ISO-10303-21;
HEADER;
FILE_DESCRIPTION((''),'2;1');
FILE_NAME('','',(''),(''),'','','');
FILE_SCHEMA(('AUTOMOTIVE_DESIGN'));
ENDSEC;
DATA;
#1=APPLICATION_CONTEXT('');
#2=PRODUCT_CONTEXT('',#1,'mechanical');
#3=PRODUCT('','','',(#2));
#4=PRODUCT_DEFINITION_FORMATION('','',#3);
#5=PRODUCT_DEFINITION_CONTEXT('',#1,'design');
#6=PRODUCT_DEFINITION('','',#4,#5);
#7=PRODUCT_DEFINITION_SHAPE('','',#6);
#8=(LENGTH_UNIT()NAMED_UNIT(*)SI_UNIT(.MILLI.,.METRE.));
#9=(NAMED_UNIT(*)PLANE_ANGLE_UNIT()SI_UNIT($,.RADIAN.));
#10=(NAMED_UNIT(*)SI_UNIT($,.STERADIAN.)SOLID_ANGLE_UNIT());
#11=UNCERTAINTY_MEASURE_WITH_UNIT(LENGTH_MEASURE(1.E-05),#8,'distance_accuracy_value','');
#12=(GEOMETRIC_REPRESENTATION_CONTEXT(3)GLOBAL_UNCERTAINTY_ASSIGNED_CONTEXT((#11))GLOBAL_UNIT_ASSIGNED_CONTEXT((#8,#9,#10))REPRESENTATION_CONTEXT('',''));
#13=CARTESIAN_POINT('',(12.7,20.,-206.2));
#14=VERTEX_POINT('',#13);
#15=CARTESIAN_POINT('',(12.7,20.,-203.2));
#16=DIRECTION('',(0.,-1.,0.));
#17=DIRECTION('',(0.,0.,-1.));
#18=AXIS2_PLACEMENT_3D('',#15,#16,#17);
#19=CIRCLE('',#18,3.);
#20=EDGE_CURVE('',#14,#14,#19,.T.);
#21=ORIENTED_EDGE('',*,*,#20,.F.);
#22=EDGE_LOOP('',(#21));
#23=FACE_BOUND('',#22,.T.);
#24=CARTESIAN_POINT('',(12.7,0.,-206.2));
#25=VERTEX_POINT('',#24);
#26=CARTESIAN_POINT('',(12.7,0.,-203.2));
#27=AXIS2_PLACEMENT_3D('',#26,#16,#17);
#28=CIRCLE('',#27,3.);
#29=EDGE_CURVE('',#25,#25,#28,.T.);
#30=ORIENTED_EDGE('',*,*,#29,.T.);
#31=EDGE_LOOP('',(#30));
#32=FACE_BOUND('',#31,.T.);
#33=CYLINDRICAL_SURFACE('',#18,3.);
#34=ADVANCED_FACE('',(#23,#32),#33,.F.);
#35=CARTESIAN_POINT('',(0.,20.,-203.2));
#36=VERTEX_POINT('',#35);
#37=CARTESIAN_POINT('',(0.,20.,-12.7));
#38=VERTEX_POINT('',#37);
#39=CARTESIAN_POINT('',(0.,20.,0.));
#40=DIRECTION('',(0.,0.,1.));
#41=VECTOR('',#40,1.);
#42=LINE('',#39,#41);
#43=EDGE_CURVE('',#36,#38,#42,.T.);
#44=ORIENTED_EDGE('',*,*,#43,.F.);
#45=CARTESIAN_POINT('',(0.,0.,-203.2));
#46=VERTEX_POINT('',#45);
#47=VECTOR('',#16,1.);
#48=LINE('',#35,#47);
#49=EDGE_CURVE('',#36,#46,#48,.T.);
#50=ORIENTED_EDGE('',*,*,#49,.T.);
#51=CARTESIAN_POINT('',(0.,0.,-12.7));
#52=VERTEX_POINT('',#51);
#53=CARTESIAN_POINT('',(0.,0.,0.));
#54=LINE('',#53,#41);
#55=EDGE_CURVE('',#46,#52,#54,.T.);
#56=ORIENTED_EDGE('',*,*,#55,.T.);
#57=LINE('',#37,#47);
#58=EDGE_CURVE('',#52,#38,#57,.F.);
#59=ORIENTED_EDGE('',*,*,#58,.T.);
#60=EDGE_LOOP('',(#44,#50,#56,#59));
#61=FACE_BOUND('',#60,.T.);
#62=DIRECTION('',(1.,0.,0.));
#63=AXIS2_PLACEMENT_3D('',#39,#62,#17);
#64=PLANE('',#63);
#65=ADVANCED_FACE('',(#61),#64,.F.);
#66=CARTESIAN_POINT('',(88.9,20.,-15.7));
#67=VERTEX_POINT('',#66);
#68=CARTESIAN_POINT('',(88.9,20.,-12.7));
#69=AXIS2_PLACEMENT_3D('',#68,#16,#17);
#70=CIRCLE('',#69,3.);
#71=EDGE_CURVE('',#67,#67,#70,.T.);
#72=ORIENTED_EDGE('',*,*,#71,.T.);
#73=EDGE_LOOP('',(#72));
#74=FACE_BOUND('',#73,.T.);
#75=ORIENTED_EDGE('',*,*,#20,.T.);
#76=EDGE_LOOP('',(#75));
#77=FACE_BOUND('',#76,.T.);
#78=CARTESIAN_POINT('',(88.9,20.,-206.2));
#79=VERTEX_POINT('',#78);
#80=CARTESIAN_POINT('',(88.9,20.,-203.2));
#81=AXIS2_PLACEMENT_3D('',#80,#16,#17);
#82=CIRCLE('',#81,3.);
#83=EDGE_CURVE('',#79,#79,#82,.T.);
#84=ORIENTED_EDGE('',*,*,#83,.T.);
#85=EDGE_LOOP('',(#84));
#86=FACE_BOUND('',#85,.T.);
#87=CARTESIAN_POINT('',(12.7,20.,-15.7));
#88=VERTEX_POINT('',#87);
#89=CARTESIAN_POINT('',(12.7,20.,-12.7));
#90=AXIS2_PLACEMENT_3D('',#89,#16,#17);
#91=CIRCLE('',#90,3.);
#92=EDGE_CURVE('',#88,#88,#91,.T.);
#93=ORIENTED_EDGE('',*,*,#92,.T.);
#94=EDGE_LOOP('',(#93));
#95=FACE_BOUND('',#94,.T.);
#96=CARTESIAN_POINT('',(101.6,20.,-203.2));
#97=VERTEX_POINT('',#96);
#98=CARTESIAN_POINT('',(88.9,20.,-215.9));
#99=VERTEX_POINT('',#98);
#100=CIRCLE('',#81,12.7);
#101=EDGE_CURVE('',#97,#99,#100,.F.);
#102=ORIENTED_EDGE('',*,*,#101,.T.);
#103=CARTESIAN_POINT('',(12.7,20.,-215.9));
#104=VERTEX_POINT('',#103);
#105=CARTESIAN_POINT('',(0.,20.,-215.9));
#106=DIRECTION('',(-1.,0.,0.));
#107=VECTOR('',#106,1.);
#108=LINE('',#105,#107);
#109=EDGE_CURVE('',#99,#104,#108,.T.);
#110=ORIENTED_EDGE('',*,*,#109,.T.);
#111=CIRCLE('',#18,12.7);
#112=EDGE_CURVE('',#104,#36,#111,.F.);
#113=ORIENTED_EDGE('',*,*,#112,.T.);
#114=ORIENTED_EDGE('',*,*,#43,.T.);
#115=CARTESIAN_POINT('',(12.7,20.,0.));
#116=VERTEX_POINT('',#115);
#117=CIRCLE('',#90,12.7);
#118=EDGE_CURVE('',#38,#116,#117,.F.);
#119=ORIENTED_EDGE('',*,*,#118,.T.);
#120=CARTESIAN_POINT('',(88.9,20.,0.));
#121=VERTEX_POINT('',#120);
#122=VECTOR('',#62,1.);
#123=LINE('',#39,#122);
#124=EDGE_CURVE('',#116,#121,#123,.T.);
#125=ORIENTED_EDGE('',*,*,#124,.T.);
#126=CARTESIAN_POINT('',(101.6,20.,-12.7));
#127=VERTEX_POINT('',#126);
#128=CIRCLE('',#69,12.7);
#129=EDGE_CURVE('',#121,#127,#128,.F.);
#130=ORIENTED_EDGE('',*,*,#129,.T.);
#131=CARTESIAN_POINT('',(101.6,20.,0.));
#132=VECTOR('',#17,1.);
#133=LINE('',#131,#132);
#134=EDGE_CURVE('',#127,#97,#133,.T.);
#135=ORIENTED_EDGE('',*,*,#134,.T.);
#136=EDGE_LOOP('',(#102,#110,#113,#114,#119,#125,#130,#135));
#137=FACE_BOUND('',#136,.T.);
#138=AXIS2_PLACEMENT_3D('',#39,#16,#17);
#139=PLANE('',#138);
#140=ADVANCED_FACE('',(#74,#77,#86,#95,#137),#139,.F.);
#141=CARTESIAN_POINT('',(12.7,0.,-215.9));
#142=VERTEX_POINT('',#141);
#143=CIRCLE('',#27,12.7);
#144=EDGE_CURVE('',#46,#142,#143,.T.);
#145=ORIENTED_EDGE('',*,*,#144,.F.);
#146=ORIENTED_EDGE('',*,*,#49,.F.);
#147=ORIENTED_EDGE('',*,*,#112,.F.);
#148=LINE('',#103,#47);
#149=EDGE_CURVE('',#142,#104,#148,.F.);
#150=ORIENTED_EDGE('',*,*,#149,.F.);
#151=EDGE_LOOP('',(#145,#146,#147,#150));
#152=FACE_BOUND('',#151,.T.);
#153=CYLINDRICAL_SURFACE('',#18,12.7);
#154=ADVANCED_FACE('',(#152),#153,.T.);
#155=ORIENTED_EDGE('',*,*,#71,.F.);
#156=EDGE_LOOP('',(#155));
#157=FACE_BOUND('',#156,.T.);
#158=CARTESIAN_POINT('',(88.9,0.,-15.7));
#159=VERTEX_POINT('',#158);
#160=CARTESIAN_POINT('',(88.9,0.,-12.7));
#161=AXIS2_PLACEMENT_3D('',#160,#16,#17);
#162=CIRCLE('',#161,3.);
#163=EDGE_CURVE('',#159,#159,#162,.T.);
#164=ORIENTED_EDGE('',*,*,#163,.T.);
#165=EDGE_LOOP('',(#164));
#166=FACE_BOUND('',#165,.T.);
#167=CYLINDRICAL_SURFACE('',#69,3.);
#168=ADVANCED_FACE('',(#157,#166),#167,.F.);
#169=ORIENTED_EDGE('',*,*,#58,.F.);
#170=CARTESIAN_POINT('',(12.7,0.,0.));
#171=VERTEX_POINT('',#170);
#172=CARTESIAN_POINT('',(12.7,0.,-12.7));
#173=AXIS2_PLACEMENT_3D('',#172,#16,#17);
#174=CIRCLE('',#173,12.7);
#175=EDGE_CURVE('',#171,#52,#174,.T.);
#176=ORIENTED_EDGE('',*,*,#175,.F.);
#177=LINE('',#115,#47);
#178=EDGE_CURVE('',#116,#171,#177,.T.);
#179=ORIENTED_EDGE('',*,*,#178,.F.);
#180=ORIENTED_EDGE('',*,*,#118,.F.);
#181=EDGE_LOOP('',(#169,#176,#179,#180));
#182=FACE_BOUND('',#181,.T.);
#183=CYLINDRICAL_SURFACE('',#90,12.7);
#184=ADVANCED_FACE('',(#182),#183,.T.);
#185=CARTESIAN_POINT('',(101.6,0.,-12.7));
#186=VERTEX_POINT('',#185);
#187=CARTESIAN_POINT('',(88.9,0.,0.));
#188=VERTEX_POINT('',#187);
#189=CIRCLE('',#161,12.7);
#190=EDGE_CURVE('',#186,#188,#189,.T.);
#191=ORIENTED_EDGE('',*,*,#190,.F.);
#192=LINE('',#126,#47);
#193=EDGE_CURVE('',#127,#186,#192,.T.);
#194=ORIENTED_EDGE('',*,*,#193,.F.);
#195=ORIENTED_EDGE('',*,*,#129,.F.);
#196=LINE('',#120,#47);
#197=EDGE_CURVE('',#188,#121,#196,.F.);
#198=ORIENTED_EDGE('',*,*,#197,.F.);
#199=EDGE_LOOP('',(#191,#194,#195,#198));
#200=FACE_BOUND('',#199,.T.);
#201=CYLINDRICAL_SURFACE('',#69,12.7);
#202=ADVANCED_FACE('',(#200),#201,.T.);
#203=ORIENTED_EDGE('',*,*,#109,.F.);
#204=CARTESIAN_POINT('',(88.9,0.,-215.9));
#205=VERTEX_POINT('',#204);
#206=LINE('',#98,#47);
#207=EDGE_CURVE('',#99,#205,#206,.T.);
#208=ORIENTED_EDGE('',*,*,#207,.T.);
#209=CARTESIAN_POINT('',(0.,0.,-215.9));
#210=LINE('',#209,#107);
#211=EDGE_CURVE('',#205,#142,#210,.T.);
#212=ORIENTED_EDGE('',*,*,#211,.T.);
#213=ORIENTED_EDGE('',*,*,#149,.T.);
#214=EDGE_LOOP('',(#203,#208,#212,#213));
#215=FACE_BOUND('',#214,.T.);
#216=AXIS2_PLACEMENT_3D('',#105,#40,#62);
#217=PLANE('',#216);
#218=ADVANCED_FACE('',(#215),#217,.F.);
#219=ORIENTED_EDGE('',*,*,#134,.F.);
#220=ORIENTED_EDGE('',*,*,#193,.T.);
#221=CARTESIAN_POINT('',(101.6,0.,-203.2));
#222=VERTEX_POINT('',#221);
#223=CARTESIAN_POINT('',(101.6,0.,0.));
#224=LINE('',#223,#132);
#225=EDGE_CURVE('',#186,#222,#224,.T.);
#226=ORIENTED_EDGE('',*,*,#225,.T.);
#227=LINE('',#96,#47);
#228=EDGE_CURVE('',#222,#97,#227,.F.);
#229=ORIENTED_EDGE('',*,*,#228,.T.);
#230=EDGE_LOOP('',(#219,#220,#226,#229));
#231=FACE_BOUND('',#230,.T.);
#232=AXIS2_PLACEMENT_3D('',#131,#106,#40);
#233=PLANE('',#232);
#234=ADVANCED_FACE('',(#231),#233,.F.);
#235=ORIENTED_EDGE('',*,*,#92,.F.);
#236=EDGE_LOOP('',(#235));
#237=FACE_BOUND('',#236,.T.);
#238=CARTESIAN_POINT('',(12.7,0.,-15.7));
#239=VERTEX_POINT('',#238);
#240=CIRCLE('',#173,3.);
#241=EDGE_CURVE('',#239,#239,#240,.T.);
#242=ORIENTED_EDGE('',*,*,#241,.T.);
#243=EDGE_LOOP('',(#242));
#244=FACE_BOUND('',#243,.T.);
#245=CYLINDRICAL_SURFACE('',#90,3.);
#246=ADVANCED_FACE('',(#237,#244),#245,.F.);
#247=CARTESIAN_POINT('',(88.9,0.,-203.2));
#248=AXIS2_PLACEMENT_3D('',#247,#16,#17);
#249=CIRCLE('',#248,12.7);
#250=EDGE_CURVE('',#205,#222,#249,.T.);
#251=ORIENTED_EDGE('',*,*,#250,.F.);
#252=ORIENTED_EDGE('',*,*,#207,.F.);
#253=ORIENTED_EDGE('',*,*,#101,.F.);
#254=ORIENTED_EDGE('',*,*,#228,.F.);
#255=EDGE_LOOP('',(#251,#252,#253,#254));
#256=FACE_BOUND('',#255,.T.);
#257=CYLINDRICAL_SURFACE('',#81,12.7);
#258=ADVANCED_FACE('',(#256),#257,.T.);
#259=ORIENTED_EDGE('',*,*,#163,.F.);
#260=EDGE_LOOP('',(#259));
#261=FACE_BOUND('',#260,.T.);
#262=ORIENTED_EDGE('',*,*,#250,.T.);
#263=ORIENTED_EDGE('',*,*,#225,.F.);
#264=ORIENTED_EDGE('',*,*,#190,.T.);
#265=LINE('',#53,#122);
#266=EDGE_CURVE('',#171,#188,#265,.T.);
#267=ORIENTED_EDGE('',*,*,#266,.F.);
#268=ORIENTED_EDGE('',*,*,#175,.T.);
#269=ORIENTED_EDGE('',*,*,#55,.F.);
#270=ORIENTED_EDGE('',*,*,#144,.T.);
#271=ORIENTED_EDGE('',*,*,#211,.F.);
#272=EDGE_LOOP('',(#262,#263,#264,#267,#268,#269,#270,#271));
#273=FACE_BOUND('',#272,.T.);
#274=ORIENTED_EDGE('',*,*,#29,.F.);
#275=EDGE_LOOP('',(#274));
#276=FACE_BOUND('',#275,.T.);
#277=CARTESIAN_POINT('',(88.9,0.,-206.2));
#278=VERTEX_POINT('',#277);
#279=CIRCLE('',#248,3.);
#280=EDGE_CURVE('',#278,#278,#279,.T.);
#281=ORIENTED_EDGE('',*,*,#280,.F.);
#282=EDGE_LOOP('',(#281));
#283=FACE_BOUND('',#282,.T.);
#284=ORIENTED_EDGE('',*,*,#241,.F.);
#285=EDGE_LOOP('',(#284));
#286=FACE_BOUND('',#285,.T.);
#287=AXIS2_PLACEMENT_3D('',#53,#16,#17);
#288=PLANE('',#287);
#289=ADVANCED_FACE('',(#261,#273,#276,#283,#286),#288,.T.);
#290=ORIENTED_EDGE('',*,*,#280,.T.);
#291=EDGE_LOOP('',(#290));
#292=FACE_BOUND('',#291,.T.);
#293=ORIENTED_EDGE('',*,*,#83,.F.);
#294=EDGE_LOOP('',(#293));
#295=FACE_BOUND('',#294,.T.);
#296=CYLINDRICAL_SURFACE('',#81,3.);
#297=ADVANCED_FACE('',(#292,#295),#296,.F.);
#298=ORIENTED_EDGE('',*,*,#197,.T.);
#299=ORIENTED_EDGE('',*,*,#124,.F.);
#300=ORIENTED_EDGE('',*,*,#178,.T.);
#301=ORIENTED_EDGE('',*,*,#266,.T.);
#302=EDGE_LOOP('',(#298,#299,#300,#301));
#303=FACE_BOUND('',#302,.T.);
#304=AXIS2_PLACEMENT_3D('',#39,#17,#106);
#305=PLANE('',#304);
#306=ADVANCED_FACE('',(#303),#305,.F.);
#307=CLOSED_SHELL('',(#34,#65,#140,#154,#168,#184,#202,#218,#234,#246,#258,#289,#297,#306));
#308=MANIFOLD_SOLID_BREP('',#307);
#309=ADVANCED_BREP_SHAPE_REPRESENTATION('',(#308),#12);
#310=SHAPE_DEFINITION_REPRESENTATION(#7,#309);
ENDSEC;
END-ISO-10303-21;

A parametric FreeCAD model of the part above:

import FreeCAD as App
import Part
import Sketcher

V = App.Vector
Q = App.Units.Quantity


def edges_at(feature, points):
    """Names of the edges that pass closest to the given points."""
    edges = feature.Shape.Edges
    near = lambda p: min(range(len(edges)), key=lambda i: edges[i].distToShape(Part.Vertex(*p))[0])
    return sorted({f"Edge{near(p) + 1}" for p in points})

doc = App.newDocument("Part")
body = doc.addObject("PartDesign::Body", "Body")

# Sketch on XZ plane
sketch1 = doc.addObject("Sketcher::SketchObject", "Sketch")
body.addObject(sketch1)
sketch1.AttachmentSupport = (doc.XZ_Plane, [""])
sketch1.MapMode = "FlatFace"
sketch1.addGeometry(Part.LineSegment(V(0, -216, 0), V(0, 0, 0)), False)
sketch1.addGeometry(Part.LineSegment(V(0, 0, 0), V(102, 0, 0)), False)
sketch1.addGeometry(Part.LineSegment(V(102, 0, 0), V(102, -216, 0)), False)
sketch1.addGeometry(Part.LineSegment(V(102, -216, 0), V(0, -216, 0)), False)
sketch1.addConstraint(Sketcher.Constraint("Coincident", 0, 2, 1, 1))
sketch1.addConstraint(Sketcher.Constraint("Coincident", 1, 2, 2, 1))
sketch1.addConstraint(Sketcher.Constraint("Coincident", 2, 2, 3, 1))
sketch1.addConstraint(Sketcher.Constraint("Coincident", 3, 2, 0, 1))
sketch1.addConstraint(Sketcher.Constraint("Vertical", 0))
sketch1.addConstraint(Sketcher.Constraint("Horizontal", 1))
sketch1.addConstraint(Sketcher.Constraint("Vertical", 2))
sketch1.addConstraint(Sketcher.Constraint("Horizontal", 3))
sketch1.addConstraint(Sketcher.Constraint("Coincident", 0, 2, -1, 1))
sketch1.addConstraint(Sketcher.Constraint("DistanceX", 1, 1, 1, 2, Q("101.6 mm")))
sketch1.addConstraint(Sketcher.Constraint("DistanceY", 0, 1, 0, 2, Q("215.9 mm")))
pad1 = doc.addObject("PartDesign::Pad", "Pad")
body.addObject(pad1)
pad1.Profile = sketch1
pad1.Length = 20
pad1.Reversed = True
doc.recompute()

fillet = doc.addObject("PartDesign::Fillet", "Fillet")
body.addObject(fillet)
fillet.Base = (pad1, edges_at(pad1, [
    (0, 10, -215.9),
    (101.6, 10, -215.9),
    (101.6, 10, 0),
    (0, 10, 0),
]))
fillet.Radius = 12.7

# Sketch on XZ plane
sketch2 = doc.addObject("Sketcher::SketchObject", "Sketch001")
body.addObject(sketch2)
sketch2.AttachmentSupport = (doc.XZ_Plane, [""])
sketch2.MapMode = "FlatFace"
sketch2.addGeometry(Part.Circle(V(88.9, -203.2, 0), V(0, 0, 1), 3), False)
sketch2.addGeometry(Part.Circle(V(12.7, -203.2, 0), V(0, 0, 1), 3), False)
sketch2.addGeometry(Part.Circle(V(88.9, -12.7, 0), V(0, 0, 1), 3), False)
sketch2.addGeometry(Part.Circle(V(12.7, -12.7, 0), V(0, 0, 1), 3), False)
sketch2.addConstraint(Sketcher.Constraint("Equal", 0, 1))
sketch2.addConstraint(Sketcher.Constraint("Equal", 1, 2))
sketch2.addConstraint(Sketcher.Constraint("Equal", 2, 3))
sketch2.addConstraint(Sketcher.Constraint("Horizontal", 0, 3, 1, 3))
sketch2.addConstraint(Sketcher.Constraint("Horizontal", 2, 3, 3, 3))
sketch2.addConstraint(Sketcher.Constraint("Vertical", 0, 3, 2, 3))
sketch2.addConstraint(Sketcher.Constraint("Vertical", 1, 3, 3, 3))
sketch2.addConstraint(Sketcher.Constraint("Diameter", 0, Q("6 mm")))
sketch2.addConstraint(Sketcher.Constraint("DistanceX", -1, 1, 0, 3, Q("88.9 mm")))
sketch2.addConstraint(Sketcher.Constraint("DistanceY", 0, 3, -1, 1, Q("203.2 mm")))
sketch2.addConstraint(Sketcher.Constraint("DistanceX", -1, 1, 1, 3, Q("12.7 mm")))
sketch2.addConstraint(Sketcher.Constraint("DistanceY", 2, 3, -1, 1, Q("12.7 mm")))
pocket1 = doc.addObject("PartDesign::Pocket", "Pocket")
body.addObject(pocket1)
pocket1.Profile = sketch2
pocket1.Type = "ThroughAll"

doc.recompute()
